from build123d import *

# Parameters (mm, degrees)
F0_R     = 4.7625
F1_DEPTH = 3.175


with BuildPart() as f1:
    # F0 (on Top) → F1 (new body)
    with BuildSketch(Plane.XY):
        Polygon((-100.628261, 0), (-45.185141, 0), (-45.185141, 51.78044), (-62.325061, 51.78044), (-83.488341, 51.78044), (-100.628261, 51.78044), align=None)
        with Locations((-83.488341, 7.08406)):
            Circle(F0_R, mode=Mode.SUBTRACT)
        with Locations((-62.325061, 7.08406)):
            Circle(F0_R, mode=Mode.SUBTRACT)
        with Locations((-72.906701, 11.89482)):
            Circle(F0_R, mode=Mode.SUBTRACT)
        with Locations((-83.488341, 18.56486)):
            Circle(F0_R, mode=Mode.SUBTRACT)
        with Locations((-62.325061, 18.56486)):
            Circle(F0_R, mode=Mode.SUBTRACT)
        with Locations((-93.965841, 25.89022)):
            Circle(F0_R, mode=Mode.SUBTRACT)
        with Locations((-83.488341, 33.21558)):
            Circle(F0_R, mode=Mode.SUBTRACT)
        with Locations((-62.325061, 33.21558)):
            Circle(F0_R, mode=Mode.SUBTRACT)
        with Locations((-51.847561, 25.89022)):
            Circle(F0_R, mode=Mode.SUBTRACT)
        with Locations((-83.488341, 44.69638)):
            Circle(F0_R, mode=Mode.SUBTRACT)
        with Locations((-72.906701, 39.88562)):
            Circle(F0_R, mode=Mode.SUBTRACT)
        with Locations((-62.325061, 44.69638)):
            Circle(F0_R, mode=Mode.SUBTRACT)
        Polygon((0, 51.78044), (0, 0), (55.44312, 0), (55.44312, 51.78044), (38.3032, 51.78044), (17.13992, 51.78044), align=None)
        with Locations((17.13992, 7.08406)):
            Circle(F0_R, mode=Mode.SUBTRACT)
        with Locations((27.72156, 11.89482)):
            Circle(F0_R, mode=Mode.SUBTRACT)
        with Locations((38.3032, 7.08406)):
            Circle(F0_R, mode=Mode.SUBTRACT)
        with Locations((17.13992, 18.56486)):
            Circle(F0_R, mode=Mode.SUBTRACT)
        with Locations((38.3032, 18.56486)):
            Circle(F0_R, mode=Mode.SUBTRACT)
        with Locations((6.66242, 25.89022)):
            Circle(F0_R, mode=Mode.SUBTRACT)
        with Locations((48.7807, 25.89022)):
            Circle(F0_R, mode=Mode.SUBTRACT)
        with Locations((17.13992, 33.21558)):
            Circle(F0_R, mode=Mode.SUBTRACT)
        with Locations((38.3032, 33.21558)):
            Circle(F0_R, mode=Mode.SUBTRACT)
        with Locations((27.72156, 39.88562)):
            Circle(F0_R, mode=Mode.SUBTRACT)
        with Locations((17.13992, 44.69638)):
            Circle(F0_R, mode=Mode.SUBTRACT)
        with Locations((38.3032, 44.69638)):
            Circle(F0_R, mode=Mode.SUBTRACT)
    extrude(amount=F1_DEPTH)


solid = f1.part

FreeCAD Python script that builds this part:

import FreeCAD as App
import Part
import Sketcher

V = App.Vector
Q = App.Units.Quantity

doc = App.newDocument("Part")
body = doc.addObject("PartDesign::Body", "Body")
body.AllowCompound = True

# Sketch on XY plane
sketch1 = body.newObject("Sketcher::SketchObject", "Sketch")
sketch1.AttachmentSupport = (doc.getObject("XY_Plane"), [""])
sketch1.MapMode = "FlatFace"
sketch1.addGeometry([
    Part.LineSegment(V(-100.628261, 0, 0), V(-45.185141, 0, 0)),  # 0
    Part.LineSegment(V(-45.185141, 0, 0), V(-45.185141, 51.78044, 0)),  # 1
    Part.LineSegment(V(-45.185141, 51.78044, 0), V(-100.628261, 51.78044, 0)),  # 2
    Part.LineSegment(V(-100.628261, 51.78044, 0), V(-100.628261, 0, 0)),  # 3
    Part.Circle(V(-83.488341, 7.08406, 0), V(0, 0, 1), 4.7625),  # 4
    Part.Circle(V(-83.488341, 18.56486, 0), V(0, 0, 1), 4.7625),  # 5
    Part.Circle(V(-62.325061, 7.08406, 0), V(0, 0, 1), 4.7625),  # 6
    Part.Circle(V(-72.906701, 11.89482, 0), V(0, 0, 1), 4.7625),  # 7
    Part.Circle(V(-62.325061, 18.56486, 0), V(0, 0, 1), 4.7625),  # 8
    Part.Circle(V(-93.965841, 25.89022, 0), V(0, 0, 1), 4.7625),  # 9
    Part.Circle(V(-83.488341, 33.21558, 0), V(0, 0, 1), 4.7625),  # 10
    Part.Circle(V(-83.488341, 44.69638, 0), V(0, 0, 1), 4.7625),  # 11
    Part.Circle(V(-62.325061, 33.21558, 0), V(0, 0, 1), 4.7625),  # 12
    Part.Circle(V(-51.847561, 25.89022, 0), V(0, 0, 1), 4.7625),  # 13
    Part.Circle(V(-72.906701, 39.88562, 0), V(0, 0, 1), 4.7625),  # 14
    Part.Circle(V(-62.325061, 44.69638, 0), V(0, 0, 1), 4.7625),  # 15
    Part.LineSegment(V(0, 51.78044, 0), V(0, 0, 0)),  # 16
    Part.LineSegment(V(0, 0, 0), V(55.44312, 0, 0)),  # 17
    Part.LineSegment(V(55.44312, 0, 0), V(55.44312, 51.78044, 0)),  # 18
    Part.LineSegment(V(55.44312, 51.78044, 0), V(0, 51.78044, 0)),  # 19
    Part.Circle(V(17.13992, 7.08406, 0), V(0, 0, 1), 4.7625),  # 20
    Part.Circle(V(27.72156, 11.89482, 0), V(0, 0, 1), 4.7625),  # 21
    Part.Circle(V(17.13992, 18.56486, 0), V(0, 0, 1), 4.7625),  # 22
    Part.Circle(V(38.3032, 7.08406, 0), V(0, 0, 1), 4.7625),  # 23
    Part.Circle(V(38.3032, 18.56486, 0), V(0, 0, 1), 4.7625),  # 24
    Part.Circle(V(6.66242, 25.89022, 0), V(0, 0, 1), 4.7625),  # 25
    Part.Circle(V(17.13992, 33.21558, 0), V(0, 0, 1), 4.7625),  # 26
    Part.Circle(V(27.72156, 39.88562, 0), V(0, 0, 1), 4.7625),  # 27
    Part.Circle(V(17.13992, 44.69638, 0), V(0, 0, 1), 4.7625),  # 28
    Part.Circle(V(38.3032, 33.21558, 0), V(0, 0, 1), 4.7625),  # 29
    Part.Circle(V(48.7807, 25.89022, 0), V(0, 0, 1), 4.7625),  # 30
    Part.Circle(V(38.3032, 44.69638, 0), V(0, 0, 1), 4.7625),  # 31
], False)
sketch1.addConstraint([
    Sketcher.Constraint("Coincident", 0, 2, 1, 1),
    Sketcher.Constraint("Coincident", 1, 2, 2, 1),
    Sketcher.Constraint("Coincident", 2, 2, 3, 1),
    Sketcher.Constraint("Coincident", 3, 2, 0, 1),
    Sketcher.Constraint("Coincident", 16, 2, 17, 1),
    Sketcher.Constraint("Coincident", 17, 2, 18, 1),
    Sketcher.Constraint("Coincident", 18, 2, 19, 1),
    Sketcher.Constraint("Coincident", 19, 2, 16, 1),
    Sketcher.Constraint("Horizontal", 0),
    Sketcher.Constraint("Vertical", 1),
    Sketcher.Constraint("Horizontal", 2),
    Sketcher.Constraint("Vertical", 3),
    Sketcher.Constraint("Vertical", 16),
    Sketcher.Constraint("Horizontal", 17),
    Sketcher.Constraint("Vertical", 18),
    Sketcher.Constraint("Horizontal", 19),
    Sketcher.Constraint("Coincident", 16, 2, -1, 1),
    Sketcher.Constraint("Equal", 4, 5),
    Sketcher.Constraint("Equal", 5, 6),
    Sketcher.Constraint("Equal", 6, 7),
    Sketcher.Constraint("Equal", 7, 8),
    Sketcher.Constraint("Equal", 8, 9),
    Sketcher.Constraint("Equal", 9, 10),
    Sketcher.Constraint("Equal", 10, 11),
    Sketcher.Constraint("Equal", 11, 12),
    Sketcher.Constraint("Equal", 12, 13),
    Sketcher.Constraint("Equal", 13, 14),
    Sketcher.Constraint("Equal", 14, 15),
    Sketcher.Constraint("Equal", 15, 20),
    Sketcher.Constraint("Equal", 20, 21),
    Sketcher.Constraint("Equal", 21, 22),
    Sketcher.Constraint("Equal", 22, 23),
    Sketcher.Constraint("Equal", 23, 24),
    Sketcher.Constraint("Equal", 24, 25),
    Sketcher.Constraint("Equal", 25, 26),
    Sketcher.Constraint("Equal", 26, 27),
    Sketcher.Constraint("Equal", 27, 28),
    Sketcher.Constraint("Equal", 28, 29),
    Sketcher.Constraint("Equal", 29, 30),
    Sketcher.Constraint("Equal", 30, 31),
    Sketcher.Constraint("PointOnObject", 0, 2, -1),
    Sketcher.Constraint("Horizontal", 4, 3, 6, 3),
    Sketcher.Constraint("Horizontal", 5, 3, 8, 3),
    Sketcher.Constraint("Horizontal", 10, 3, 12, 3),
    Sketcher.Constraint("Horizontal", 9, 3, 13, 3),
    Sketcher.Constraint("Horizontal", 11, 3, 15, 3),
    Sketcher.Constraint("Horizontal", 6, 3, 20, 3),
    Sketcher.Constraint("Horizontal", 7, 3, 21, 3),
    Sketcher.Constraint("Horizontal", 8, 3, 22, 3),
    Sketcher.Constraint("Horizontal", 20, 3, 23, 3),
    Sketcher.Constraint("Horizontal", 22, 3, 24, 3),
    Sketcher.Constraint("Horizontal", 13, 3, 25, 3),
    Sketcher.Constraint("Horizontal", 12, 3, 26, 3),
    Sketcher.Constraint("Horizontal", 14, 3, 27, 3),
    Sketcher.Constraint("Horizontal", 15, 3, 28, 3),
    Sketcher.Constraint("Horizontal", 26, 3, 29, 3),
    Sketcher.Constraint("Horizontal", 25, 3, 30, 3),
    Sketcher.Constraint("Horizontal", 28, 3, 31, 3),
    Sketcher.Constraint("Horizontal", 2, 2, 18, 2),
    Sketcher.Constraint("Vertical", 4, 3, 5, 3),
    Sketcher.Constraint("Vertical", 6, 3, 8, 3),
    Sketcher.Constraint("Vertical", 5, 3, 10, 3),
    Sketcher.Constraint("Vertical", 10, 3, 11, 3),
    Sketcher.Constraint("Vertical", 8, 3, 12, 3),
    Sketcher.Constraint("Vertical", 7, 3, 14, 3),
    Sketcher.Constraint("Vertical", 12, 3, 15, 3),
    Sketcher.Constraint("Vertical", 20, 3, 22, 3),
    Sketcher.Constraint("Vertical", 23, 3, 24, 3),
    Sketcher.Constraint("Vertical", 22, 3, 26, 3),
    Sketcher.Constraint("Vertical", 21, 3, 27, 3),
    Sketcher.Constraint("Vertical", 26, 3, 28, 3),
    Sketcher.Constraint("Vertical", 24, 3, 29, 3),
    Sketcher.Constraint("Vertical", 29, 3, 31, 3),
    Sketcher.Constraint("Equal", 2, 17),
    Sketcher.Constraint("Diameter", 4, Q("0.375 in")),
    Sketcher.Constraint("DistanceX", 0, 1, 0, 2, Q("2.1828 in")),
    Sketcher.Constraint("DistanceY", 1, 1, 1, 2, Q("2.0386 in")),
    Sketcher.Constraint("DistanceX", -1, 1, 23, 3, Q("1.508 in")),
    Sketcher.Constraint("DistanceY", 4, 3, 5, 3, Q("0.452 in")),
    Sketcher.Constraint("DistanceY", 7, 3, 9, 3, Q("0.551 in")),
    Sketcher.Constraint("DistanceY", 10, 3, 11, 3, Q("0.452 in")),
    Sketcher.Constraint("DistanceY", 25, 3, 27, 3, Q("0.551 in")),
    Sketcher.Constraint("DistanceY", -1, 1, 4, 3, Q("0.2789 in")),
    Sketcher.Constraint("DistanceY", -1, 1, 7, 3, Q("0.4683 in")),
    Sketcher.Constraint("DistanceY", -1, 1, 10, 3, Q("1.3077 in")),
    Sketcher.Constraint("DistanceX", -1, 1, 20, 3, Q("0.6748 in")),
    Sketcher.Constraint("DistanceX", -1, 1, 21, 3, Q("1.0914 in")),
    Sketcher.Constraint("DistanceX", -1, 1, 25, 3, Q("0.2623 in")),
    Sketcher.Constraint("DistanceX", -1, 1, 30, 3, Q("1.9205 in")),
    Sketcher.Constraint("DistanceX", 4, 3, 6, 3, Q("0.8332 in")),
    Sketcher.Constraint("DistanceX", 7, 3, 6, 3, Q("0.4166 in")),
    Sketcher.Constraint("DistanceX", 9, 3, 5, 3, Q("0.4125 in")),
    Sketcher.Constraint("DistanceX", 8, 3, 13, 3, Q("0.4125 in")),
    Sketcher.Constraint("DistanceX", 6, 3, 0, 2, Q("0.6748 in")),
    Sketcher.Constraint("DistanceX", 7, 3, -1, 1, Q("72.906701 mm")),
])
pad1 = body.newObject("PartDesign::Pad", "Pad")
pad1.Profile = sketch1
pad1.Length = Q("0.125 in")

doc.recompute()
